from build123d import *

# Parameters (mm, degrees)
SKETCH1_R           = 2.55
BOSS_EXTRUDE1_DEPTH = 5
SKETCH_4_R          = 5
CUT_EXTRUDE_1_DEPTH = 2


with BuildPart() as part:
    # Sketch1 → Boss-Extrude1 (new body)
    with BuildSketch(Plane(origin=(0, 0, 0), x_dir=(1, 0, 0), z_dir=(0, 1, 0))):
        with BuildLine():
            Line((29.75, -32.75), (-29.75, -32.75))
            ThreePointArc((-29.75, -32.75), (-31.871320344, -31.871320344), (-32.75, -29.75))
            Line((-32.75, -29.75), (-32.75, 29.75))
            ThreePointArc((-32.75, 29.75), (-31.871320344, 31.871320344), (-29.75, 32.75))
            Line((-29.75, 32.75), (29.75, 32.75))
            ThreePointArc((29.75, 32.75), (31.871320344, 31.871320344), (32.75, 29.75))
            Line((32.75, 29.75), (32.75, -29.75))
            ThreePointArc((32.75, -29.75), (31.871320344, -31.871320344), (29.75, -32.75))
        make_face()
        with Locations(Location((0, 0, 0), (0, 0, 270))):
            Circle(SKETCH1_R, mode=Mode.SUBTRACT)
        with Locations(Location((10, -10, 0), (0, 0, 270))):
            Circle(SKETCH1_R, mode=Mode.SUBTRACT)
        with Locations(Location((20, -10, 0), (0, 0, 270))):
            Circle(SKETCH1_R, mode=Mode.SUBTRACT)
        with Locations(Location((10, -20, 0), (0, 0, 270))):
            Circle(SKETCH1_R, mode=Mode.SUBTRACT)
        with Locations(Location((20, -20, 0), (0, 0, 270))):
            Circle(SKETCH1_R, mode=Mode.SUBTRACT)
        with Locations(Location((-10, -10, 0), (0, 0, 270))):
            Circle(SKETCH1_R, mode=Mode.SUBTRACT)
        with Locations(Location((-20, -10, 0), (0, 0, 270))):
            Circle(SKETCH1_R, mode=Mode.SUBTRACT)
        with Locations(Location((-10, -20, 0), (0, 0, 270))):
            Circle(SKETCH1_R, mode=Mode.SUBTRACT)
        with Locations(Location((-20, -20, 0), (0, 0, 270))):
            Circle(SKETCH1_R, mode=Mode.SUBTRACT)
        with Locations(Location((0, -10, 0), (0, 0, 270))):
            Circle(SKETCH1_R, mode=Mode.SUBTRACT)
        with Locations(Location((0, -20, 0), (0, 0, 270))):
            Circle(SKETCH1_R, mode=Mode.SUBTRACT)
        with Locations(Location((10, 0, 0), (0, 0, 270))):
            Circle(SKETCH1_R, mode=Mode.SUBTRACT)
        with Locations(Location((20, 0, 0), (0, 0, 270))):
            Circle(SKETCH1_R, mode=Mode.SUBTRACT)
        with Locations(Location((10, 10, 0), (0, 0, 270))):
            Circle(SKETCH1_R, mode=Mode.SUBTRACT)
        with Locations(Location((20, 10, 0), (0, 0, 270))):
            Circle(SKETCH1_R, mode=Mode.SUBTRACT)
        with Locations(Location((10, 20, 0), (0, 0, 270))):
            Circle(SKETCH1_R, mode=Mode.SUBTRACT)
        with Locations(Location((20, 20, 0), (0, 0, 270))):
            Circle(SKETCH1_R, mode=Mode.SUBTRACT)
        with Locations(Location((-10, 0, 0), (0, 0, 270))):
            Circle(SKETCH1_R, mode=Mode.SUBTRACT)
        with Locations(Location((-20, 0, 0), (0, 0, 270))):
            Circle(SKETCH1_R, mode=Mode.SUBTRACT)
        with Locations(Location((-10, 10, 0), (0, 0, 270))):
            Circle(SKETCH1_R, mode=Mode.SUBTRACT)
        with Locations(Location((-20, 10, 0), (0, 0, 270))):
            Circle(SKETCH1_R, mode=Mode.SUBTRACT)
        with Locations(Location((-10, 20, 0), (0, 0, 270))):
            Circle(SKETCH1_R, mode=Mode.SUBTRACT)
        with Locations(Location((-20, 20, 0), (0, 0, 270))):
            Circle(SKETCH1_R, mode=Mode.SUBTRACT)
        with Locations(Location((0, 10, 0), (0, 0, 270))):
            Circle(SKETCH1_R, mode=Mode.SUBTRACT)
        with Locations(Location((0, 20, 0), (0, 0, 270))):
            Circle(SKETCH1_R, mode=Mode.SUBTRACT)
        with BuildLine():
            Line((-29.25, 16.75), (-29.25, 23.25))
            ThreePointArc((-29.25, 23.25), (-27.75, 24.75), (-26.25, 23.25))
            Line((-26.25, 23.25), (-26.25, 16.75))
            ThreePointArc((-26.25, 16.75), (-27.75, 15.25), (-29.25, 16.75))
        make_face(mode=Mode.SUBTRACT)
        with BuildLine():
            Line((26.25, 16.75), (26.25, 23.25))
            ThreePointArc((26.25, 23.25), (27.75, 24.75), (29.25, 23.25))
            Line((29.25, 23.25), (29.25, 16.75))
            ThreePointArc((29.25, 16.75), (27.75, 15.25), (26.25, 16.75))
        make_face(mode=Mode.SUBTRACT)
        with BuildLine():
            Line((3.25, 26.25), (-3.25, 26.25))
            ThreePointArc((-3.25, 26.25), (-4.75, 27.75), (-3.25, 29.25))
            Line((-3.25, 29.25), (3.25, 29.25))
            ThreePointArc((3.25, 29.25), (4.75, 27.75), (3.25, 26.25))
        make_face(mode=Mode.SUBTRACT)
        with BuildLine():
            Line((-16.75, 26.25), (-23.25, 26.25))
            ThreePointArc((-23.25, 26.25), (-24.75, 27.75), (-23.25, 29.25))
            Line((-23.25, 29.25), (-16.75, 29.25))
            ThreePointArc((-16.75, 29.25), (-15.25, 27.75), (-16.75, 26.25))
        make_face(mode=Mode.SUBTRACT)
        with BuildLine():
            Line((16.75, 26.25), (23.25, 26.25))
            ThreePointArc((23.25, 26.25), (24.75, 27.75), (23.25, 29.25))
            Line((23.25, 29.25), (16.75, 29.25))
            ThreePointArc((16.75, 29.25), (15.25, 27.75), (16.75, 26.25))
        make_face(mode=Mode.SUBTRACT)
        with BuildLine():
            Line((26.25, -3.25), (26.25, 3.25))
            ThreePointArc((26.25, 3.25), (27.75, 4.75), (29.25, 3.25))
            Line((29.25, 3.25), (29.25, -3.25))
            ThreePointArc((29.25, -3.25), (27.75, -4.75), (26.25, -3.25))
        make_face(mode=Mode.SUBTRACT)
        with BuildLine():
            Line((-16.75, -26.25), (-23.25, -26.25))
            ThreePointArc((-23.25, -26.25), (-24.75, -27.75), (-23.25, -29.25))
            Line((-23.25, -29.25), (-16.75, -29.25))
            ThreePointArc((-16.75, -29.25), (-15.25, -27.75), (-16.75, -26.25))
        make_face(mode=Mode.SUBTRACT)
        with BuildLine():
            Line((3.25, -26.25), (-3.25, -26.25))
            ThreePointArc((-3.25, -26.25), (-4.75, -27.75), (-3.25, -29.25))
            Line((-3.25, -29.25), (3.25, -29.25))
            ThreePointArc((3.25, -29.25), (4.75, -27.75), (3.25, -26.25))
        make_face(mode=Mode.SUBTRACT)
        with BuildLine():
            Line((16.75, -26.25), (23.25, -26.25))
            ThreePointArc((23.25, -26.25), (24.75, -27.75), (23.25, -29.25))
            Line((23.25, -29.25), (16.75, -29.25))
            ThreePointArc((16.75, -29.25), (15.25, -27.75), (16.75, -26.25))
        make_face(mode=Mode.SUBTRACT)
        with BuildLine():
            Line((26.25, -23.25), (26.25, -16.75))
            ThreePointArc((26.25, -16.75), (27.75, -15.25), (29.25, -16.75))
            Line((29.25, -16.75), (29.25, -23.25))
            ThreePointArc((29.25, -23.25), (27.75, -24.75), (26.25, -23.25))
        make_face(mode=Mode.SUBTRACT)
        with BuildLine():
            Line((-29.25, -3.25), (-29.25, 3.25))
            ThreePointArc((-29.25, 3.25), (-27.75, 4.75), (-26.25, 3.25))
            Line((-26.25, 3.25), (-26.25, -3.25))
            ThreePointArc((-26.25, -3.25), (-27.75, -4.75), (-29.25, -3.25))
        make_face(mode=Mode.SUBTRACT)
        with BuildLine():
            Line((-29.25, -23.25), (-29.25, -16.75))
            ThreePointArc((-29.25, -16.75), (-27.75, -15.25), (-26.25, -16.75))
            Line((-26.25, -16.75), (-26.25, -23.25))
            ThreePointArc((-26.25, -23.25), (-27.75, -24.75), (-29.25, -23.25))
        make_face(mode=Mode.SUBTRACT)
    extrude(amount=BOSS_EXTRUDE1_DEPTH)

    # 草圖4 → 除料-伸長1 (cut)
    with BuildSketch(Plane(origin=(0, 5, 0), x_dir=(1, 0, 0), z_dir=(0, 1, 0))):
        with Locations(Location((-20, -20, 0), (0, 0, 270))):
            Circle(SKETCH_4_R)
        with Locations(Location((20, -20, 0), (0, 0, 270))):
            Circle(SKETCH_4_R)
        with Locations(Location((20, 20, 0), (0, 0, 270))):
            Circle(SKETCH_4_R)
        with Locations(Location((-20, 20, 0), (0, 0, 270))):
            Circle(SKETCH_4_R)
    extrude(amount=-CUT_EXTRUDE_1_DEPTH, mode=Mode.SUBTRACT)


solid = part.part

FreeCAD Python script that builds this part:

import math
import FreeCAD as App
import Part
import Sketcher

V = App.Vector

doc = App.newDocument("Part")
params = doc.addObject("Spreadsheet::Sheet", "Params")
for row, (alias, value) in enumerate([
    ("sketch1_radius", "3 mm"),
    ("sketch1_diameter", "5.1 mm"),
    ("sketch1_radius2", "1.5 mm"),
    ("sketch1_width", "59.5 mm"),
    ("sketch1_width2", "6.5 mm"),
    ("pad1_length", "5 mm"),
    ("sketch2_diameter", "10 mm"),
    ("pocket1_length", "2 mm"),
], start=1):
    params.set(f"A{row}", alias)
    params.set(f"B{row}", "=" + value)
    params.setAlias(f"B{row}", alias)

body = doc.addObject("PartDesign::Body", "Body")

# Sketch on XZ plane
sketch1 = doc.addObject("Sketcher::SketchObject", "Sketch")
body.addObject(sketch1)
sketch1.AttachmentSupport = (doc.XZ_Plane, [""])
sketch1.MapMode = "FlatFace"
sketch1.addGeometry([
    Part.LineSegment(V(-29.8, 32.8, 0), V(29.8, 32.8, 0)),  # 0
    Part.ArcOfCircle(Part.Circle(V(29.8, 29.8, 0), V(0, 0, 1), 3), math.radians(0), math.radians(90)),  # 1
    Part.LineSegment(V(32.8, 29.8, 0), V(32.8, -29.8, 0)),  # 2
    Part.ArcOfCircle(Part.Circle(V(29.8, -29.8, 0), V(0, 0, 1), 3), math.radians(-90), math.radians(0)),  # 3
    Part.LineSegment(V(29.8, -32.8, 0), V(-29.8, -32.8, 0)),  # 4
    Part.ArcOfCircle(Part.Circle(V(-29.8, -29.8, 0), V(0, 0, 1), 3), math.radians(180), math.radians(270)),  # 5
    Part.LineSegment(V(-32.8, -29.8, 0), V(-32.8, 29.8, 0)),  # 6
    Part.ArcOfCircle(Part.Circle(V(-29.8, 29.8, 0), V(0, 0, 1), 3), math.radians(90), math.radians(180)),  # 7
    Part.LineSegment(V(16.8, 26.2, 0), V(23.2, 26.2, 0)),  # 8
    Part.ArcOfCircle(Part.Circle(V(23.2, 27.8, 0), V(0, 0, 1), 1.5), math.radians(-90), math.radians(90)),  # 9
    Part.LineSegment(V(23.2, 29.2, 0), V(16.8, 29.2, 0)),  # 10
    Part.ArcOfCircle(Part.Circle(V(16.8, 27.8, 0), V(0, 0, 1), 1.5), math.radians(90), math.radians(270)),  # 11
    Part.LineSegment(V(26.2, 23.2, 0), V(26.2, 16.8, 0)),  # 12
    Part.ArcOfCircle(Part.Circle(V(27.8, 16.8, 0), V(0, 0, 1), 1.5), math.radians(180), math.radians(360)),  # 13
    Part.LineSegment(V(29.2, 16.8, 0), V(29.2, 23.2, 0)),  # 14
    Part.ArcOfCircle(Part.Circle(V(27.8, 23.2, 0), V(0, 0, 1), 1.5), math.radians(0), math.radians(180)),  # 15
    Part.Circle(V(20, 20, 0), V(0, 0, 1), 2.5),  # 16
    Part.Circle(V(10, 20, 0), V(0, 0, 1), 2.5),  # 17
    Part.Circle(V(20, 10, 0), V(0, 0, 1), 2.5),  # 18
    Part.Circle(V(10, 10, 0), V(0, 0, 1), 2.5),  # 19
    Part.ArcOfCircle(Part.Circle(V(3.2, 27.8, 0), V(0, 0, 1), 1.5), math.radians(-90), math.radians(90)),  # 20
    Part.LineSegment(V(3.2, 29.2, 0), V(-3.2, 29.2, 0)),  # 21
    Part.ArcOfCircle(Part.Circle(V(-3.2, 27.8, 0), V(0, 0, 1), 1.5), math.radians(90), math.radians(270)),  # 22
    Part.LineSegment(V(-3.2, 26.2, 0), V(3.2, 26.2, 0)),  # 23
    Part.Circle(V(0, 20, 0), V(0, 0, 1), 2.5),  # 24
    Part.Circle(V(-10, 20, 0), V(0, 0, 1), 2.5),  # 25
    Part.ArcOfCircle(Part.Circle(V(-16.8, 27.8, 0), V(0, 0, 1), 1.5), math.radians(-90), math.radians(90)),  # 26
    Part.LineSegment(V(-16.8, 29.2, 0), V(-23.2, 29.2, 0)),  # 27
    Part.ArcOfCircle(Part.Circle(V(-23.2, 27.8, 0), V(0, 0, 1), 1.5), math.radians(90), math.radians(270)),  # 28
    Part.LineSegment(V(-23.2, 26.2, 0), V(-16.8, 26.2, 0)),  # 29
    Part.Circle(V(-20, 20, 0), V(0, 0, 1), 2.5),  # 30
    Part.LineSegment(V(-29.2, 23.2, 0), V(-29.2, 16.8, 0)),  # 31
    Part.ArcOfCircle(Part.Circle(V(-27.8, 16.8, 0), V(0, 0, 1), 1.5), math.radians(180), math.radians(360)),  # 32
    Part.LineSegment(V(-26.2, 16.8, 0), V(-26.2, 23.2, 0)),  # 33
    Part.ArcOfCircle(Part.Circle(V(-27.8, 23.2, 0), V(0, 0, 1), 1.5), math.radians(0), math.radians(180)),  # 34
    Part.Circle(V(0, 10, 0), V(0, 0, 1), 2.5),  # 35
    Part.Circle(V(-10, 10, 0), V(0, 0, 1), 2.5),  # 36
    Part.Circle(V(-20, 10, 0), V(0, 0, 1), 2.5),  # 37
    Part.LineSegment(V(26.2, 3.2, 0), V(26.2, -3.2, 0)),  # 38
    Part.ArcOfCircle(Part.Circle(V(27.8, -3.2, 0), V(0, 0, 1), 1.5), math.radians(180), math.radians(360)),  # 39
    Part.LineSegment(V(29.2, -3.2, 0), V(29.2, 3.2, 0)),  # 40
    Part.ArcOfCircle(Part.Circle(V(27.8, 3.2, 0), V(0, 0, 1), 1.5), math.radians(0), math.radians(180)),  # 41
    Part.Circle(V(20, 0, 0), V(0, 0, 1), 2.5),  # 42
    Part.Circle(V(20, -10, 0), V(0, 0, 1), 2.5),  # 43
    Part.Circle(V(10, 0, 0), V(0, 0, 1), 2.5),  # 44
    Part.Circle(V(10, -10, 0), V(0, 0, 1), 2.5),  # 45
    Part.LineSegment(V(26.2, -16.8, 0), V(26.2, -23.2, 0)),  # 46
    Part.ArcOfCircle(Part.Circle(V(27.8, -23.2, 0), V(0, 0, 1), 1.5), math.radians(180), math.radians(360)),  # 47
    Part.LineSegment(V(29.2, -23.2, 0), V(29.2, -16.8, 0)),  # 48
    Part.ArcOfCircle(Part.Circle(V(27.8, -16.8, 0), V(0, 0, 1), 1.5), math.radians(0), math.radians(180)),  # 49
    Part.Circle(V(20, -20, 0), V(0, 0, 1), 2.5),  # 50
    Part.ArcOfCircle(Part.Circle(V(16.8, -27.8, 0), V(0, 0, 1), 1.5), math.radians(90), math.radians(270)),  # 51
    Part.LineSegment(V(16.8, -29.2, 0), V(23.2, -29.2, 0)),  # 52
    Part.ArcOfCircle(Part.Circle(V(23.2, -27.8, 0), V(0, 0, 1), 1.5), math.radians(-90), math.radians(90)),  # 53
    Part.LineSegment(V(23.2, -26.2, 0), V(16.8, -26.2, 0)),  # 54
    Part.Circle(V(10, -20, 0), V(0, 0, 1), 2.5),  # 55
    Part.Circle(V(0, 0, 0), V(0, 0, 1), 2.5),  # 56
    Part.Circle(V(-10, 0, 0), V(0, 0, 1), 2.5),  # 57
    Part.Circle(V(0, -10, 0), V(0, 0, 1), 2.5),  # 58
    Part.Circle(V(-10, -10, 0), V(0, 0, 1), 2.5),  # 59
    Part.Circle(V(-20, 0, 0), V(0, 0, 1), 2.5),  # 60
    Part.LineSegment(V(-29.2, 3.2, 0), V(-29.2, -3.2, 0)),  # 61
    Part.ArcOfCircle(Part.Circle(V(-27.8, -3.2, 0), V(0, 0, 1), 1.5), math.radians(180), math.radians(360)),  # 62
    Part.LineSegment(V(-26.2, -3.2, 0), V(-26.2, 3.2, 0)),  # 63
    Part.ArcOfCircle(Part.Circle(V(-27.8, 3.2, 0), V(0, 0, 1), 1.5), math.radians(0), math.radians(180)),  # 64
    Part.Circle(V(-20, -10, 0), V(0, 0, 1), 2.5),  # 65
    Part.Circle(V(0, -20, 0), V(0, 0, 1), 2.5),  # 66
    Part.Circle(V(-10, -20, 0), V(0, 0, 1), 2.5),  # 67
    Part.LineSegment(V(3.2, -26.2, 0), V(-3.2, -26.2, 0)),  # 68
    Part.ArcOfCircle(Part.Circle(V(-3.2, -27.8, 0), V(0, 0, 1), 1.5), math.radians(90), math.radians(270)),  # 69
    Part.LineSegment(V(-3.2, -29.2, 0), V(3.2, -29.2, 0)),  # 70
    Part.ArcOfCircle(Part.Circle(V(3.2, -27.8, 0), V(0, 0, 1), 1.5), math.radians(-90), math.radians(90)),  # 71
    Part.Circle(V(-20, -20, 0), V(0, 0, 1), 2.5),  # 72
    Part.LineSegment(V(-29.2, -16.8, 0), V(-29.2, -23.2, 0)),  # 73
    Part.ArcOfCircle(Part.Circle(V(-27.8, -23.2, 0), V(0, 0, 1), 1.5), math.radians(180), math.radians(360)),  # 74
    Part.LineSegment(V(-26.2, -23.2, 0), V(-26.2, -16.8, 0)),  # 75
    Part.ArcOfCircle(Part.Circle(V(-27.8, -16.8, 0), V(0, 0, 1), 1.5), math.radians(0), math.radians(180)),  # 76
    Part.LineSegment(V(-16.8, -26.2, 0), V(-23.2, -26.2, 0)),  # 77
    Part.ArcOfCircle(Part.Circle(V(-23.2, -27.8, 0), V(0, 0, 1), 1.5), math.radians(90), math.radians(270)),  # 78
    Part.LineSegment(V(-23.2, -29.2, 0), V(-16.8, -29.2, 0)),  # 79
    Part.ArcOfCircle(Part.Circle(V(-16.8, -27.8, 0), V(0, 0, 1), 1.5), math.radians(-90), math.radians(90)),  # 80
], False)
sketch1.addConstraint([
    Sketcher.Constraint("Tangent", 0, 2, 1, 2),
    Sketcher.Constraint("Tangent", 1, 1, 2, 1),
    Sketcher.Constraint("Tangent", 2, 2, 3, 2),
    Sketcher.Constraint("Tangent", 3, 1, 4, 1),
    Sketcher.Constraint("Tangent", 4, 2, 5, 2),
    Sketcher.Constraint("Tangent", 5, 1, 6, 1),
    Sketcher.Constraint("Tangent", 6, 2, 7, 2),
    Sketcher.Constraint("Tangent", 7, 1, 0, 1),
    Sketcher.Constraint("Tangent", 8, 2, 9, 1),
    Sketcher.Constraint("Tangent", 9, 2, 10, 1),
    Sketcher.Constraint("Tangent", 10, 2, 11, 1),
    Sketcher.Constraint("Tangent", 11, 2, 8, 1),
    Sketcher.Constraint("Tangent", 12, 2, 13, 1),
    Sketcher.Constraint("Tangent", 13, 2, 14, 1),
    Sketcher.Constraint("Tangent", 14, 2, 15, 1),
    Sketcher.Constraint("Tangent", 15, 2, 12, 1),
    Sketcher.Constraint("Tangent", 20, 2, 21, 1),
    Sketcher.Constraint("Tangent", 21, 2, 22, 1),
    Sketcher.Constraint("Tangent", 22, 2, 23, 1),
    Sketcher.Constraint("Tangent", 23, 2, 20, 1),
    Sketcher.Constraint("Tangent", 26, 2, 27, 1),
    Sketcher.Constraint("Tangent", 27, 2, 28, 1),
    Sketcher.Constraint("Tangent", 28, 2, 29, 1),
    Sketcher.Constraint("Tangent", 29, 2, 26, 1),
    Sketcher.Constraint("Tangent", 31, 2, 32, 1),
    Sketcher.Constraint("Tangent", 32, 2, 33, 1),
    Sketcher.Constraint("Tangent", 33, 2, 34, 1),
    Sketcher.Constraint("Tangent", 34, 2, 31, 1),
    Sketcher.Constraint("Tangent", 38, 2, 39, 1),
    Sketcher.Constraint("Tangent", 39, 2, 40, 1),
    Sketcher.Constraint("Tangent", 40, 2, 41, 1),
    Sketcher.Constraint("Tangent", 41, 2, 38, 1),
    Sketcher.Constraint("Tangent", 46, 2, 47, 1),
    Sketcher.Constraint("Tangent", 47, 2, 48, 1),
    Sketcher.Constraint("Tangent", 48, 2, 49, 1),
    Sketcher.Constraint("Tangent", 49, 2, 46, 1),
    Sketcher.Constraint("Tangent", 51, 2, 52, 1),
    Sketcher.Constraint("Tangent", 52, 2, 53, 1),
    Sketcher.Constraint("Tangent", 53, 2, 54, 1),
    Sketcher.Constraint("Tangent", 54, 2, 51, 1),
    Sketcher.Constraint("Tangent", 61, 2, 62, 1),
    Sketcher.Constraint("Tangent", 62, 2, 63, 1),
    Sketcher.Constraint("Tangent", 63, 2, 64, 1),
    Sketcher.Constraint("Tangent", 64, 2, 61, 1),
    Sketcher.Constraint("Tangent", 68, 2, 69, 1),
    Sketcher.Constraint("Tangent", 69, 2, 70, 1),
    Sketcher.Constraint("Tangent", 70, 2, 71, 1),
    Sketcher.Constraint("Tangent", 71, 2, 68, 1),
    Sketcher.Constraint("Tangent", 73, 2, 74, 1),
    Sketcher.Constraint("Tangent", 74, 2, 75, 1),
    Sketcher.Constraint("Tangent", 75, 2, 76, 1),
    Sketcher.Constraint("Tangent", 76, 2, 73, 1),
    Sketcher.Constraint("Tangent", 77, 2, 78, 1),
    Sketcher.Constraint("Tangent", 78, 2, 79, 1),
    Sketcher.Constraint("Tangent", 79, 2, 80, 1),
    Sketcher.Constraint("Tangent", 80, 2, 77, 1),
    Sketcher.Constraint("Horizontal", 0),
    Sketcher.Constraint("Vertical", 2),
    Sketcher.Constraint("Horizontal", 4),
    Sketcher.Constraint("Vertical", 6),
    Sketcher.Constraint("Horizontal", 8),
    Sketcher.Constraint("Horizontal", 10),
    Sketcher.Constraint("Vertical", 12),
    Sketcher.Constraint("Vertical", 14),
    Sketcher.Constraint("Horizontal", 21),
    Sketcher.Constraint("Horizontal", 23),
    Sketcher.Constraint("Horizontal", 27),
    Sketcher.Constraint("Horizontal", 29),
    Sketcher.Constraint("Vertical", 31),
    Sketcher.Constraint("Vertical", 33),
    Sketcher.Constraint("Vertical", 38),
    Sketcher.Constraint("Vertical", 40),
    Sketcher.Constraint("Vertical", 46),
    Sketcher.Constraint("Vertical", 48),
    Sketcher.Constraint("Horizontal", 52),
    Sketcher.Constraint("Horizontal", 54),
    Sketcher.Constraint("Vertical", 61),
    Sketcher.Constraint("Vertical", 63),
    Sketcher.Constraint("Horizontal", 68),
    Sketcher.Constraint("Horizontal", 70),
    Sketcher.Constraint("Vertical", 73),
    Sketcher.Constraint("Vertical", 75),
    Sketcher.Constraint("Horizontal", 77),
    Sketcher.Constraint("Horizontal", 79),
    Sketcher.Constraint("Coincident", 56, 3, -1, 1),
    Sketcher.Constraint("Equal", 1, 3),
    Sketcher.Constraint("Equal", 3, 5),
    Sketcher.Constraint("Equal", 5, 7),
    Sketcher.Constraint("Equal", 11, 13),
    Sketcher.Constraint("Equal", 16, 17),
    Sketcher.Constraint("Equal", 17, 18),
    Sketcher.Constraint("Equal", 18, 19),
    Sketcher.Constraint("Equal", 15, 20),
    Sketcher.Constraint("Equal", 19, 24),
    Sketcher.Constraint("Equal", 24, 25),
    Sketcher.Constraint("Equal", 22, 26),
    Sketcher.Constraint("Equal", 25, 30),
    Sketcher.Constraint("Equal", 28, 32),
    Sketcher.Constraint("Equal", 30, 35),
    Sketcher.Constraint("Equal", 35, 36),
    Sketcher.Constraint("Equal", 36, 37),
    Sketcher.Constraint("Equal", 34, 39),
    Sketcher.Constraint("Equal", 37, 42),
    Sketcher.Constraint("Equal", 42, 43),
    Sketcher.Constraint("Equal", 43, 44),
    Sketcher.Constraint("Equal", 44, 45),
    Sketcher.Constraint("Equal", 41, 47),
    Sketcher.Constraint("Equal", 45, 50),
    Sketcher.Constraint("Equal", 49, 51),
    Sketcher.Constraint("Equal", 50, 55),
    Sketcher.Constraint("Equal", 55, 56),
    Sketcher.Constraint("Equal", 56, 57),
    Sketcher.Constraint("Equal", 57, 58),
    Sketcher.Constraint("Equal", 58, 59),
    Sketcher.Constraint("Equal", 59, 60),
    Sketcher.Constraint("Equal", 53, 62),
    Sketcher.Constraint("Equal", 60, 65),
    Sketcher.Constraint("Equal", 65, 66),
    Sketcher.Constraint("Equal", 66, 67),
    Sketcher.Constraint("Equal", 64, 69),
    Sketcher.Constraint("Equal", 67, 72),
    Sketcher.Constraint("Equal", 71, 74),
    Sketcher.Constraint("Equal", 76, 78),
    Sketcher.Constraint("Symmetric", 1, 3, 5, 3, -1, 1),
    Sketcher.Constraint("Symmetric", 37, 3, 43, 3, -1, 1),
    Sketcher.Constraint("Symmetric", 36, 3, 45, 3, -1, 1),
    Sketcher.Constraint("Symmetric", 34, 3, 47, 3, -1, 1),
    Sketcher.Constraint("Symmetric", 30, 3, 50, 3, -1, 1),
    Sketcher.Constraint("Symmetric", 26, 3, 51, 3, -1, 1),
    Sketcher.Constraint("Symmetric", 25, 3, 55, 3, -1, 1),
    Sketcher.Constraint("Symmetric", 44, 3, 57, 3, -1, 1),
    Sketcher.Constraint("Symmetric", 35, 3, 58, 3, -1, 1),
    Sketcher.Constraint("Symmetric", 19, 3, 59, 3, -1, 1),
    Sketcher.Constraint("Symmetric", 42, 3, 60, 3, -1, 1),
    Sketcher.Constraint("Symmetric", 41, 3, 62, 3, -1, 1),
    Sketcher.Constraint("Symmetric", 18, 3, 65, 3, -1, 1),
    Sketcher.Constraint("Symmetric", 24, 3, 66, 3, -1, 1),
    Sketcher.Constraint("Symmetric", 17, 3, 67, 3, -1, 1),
    Sketcher.Constraint("Symmetric", 20, 3, 69, 3, -1, 1),
    Sketcher.Constraint("Symmetric", 16, 3, 72, 3, -1, 1),
    Sketcher.Constraint("Symmetric", 15, 3, 74, 3, -1, 1),
    Sketcher.Constraint("Symmetric", 9, 3, 78, 3, -1, 1),
    Sketcher.Constraint("Symmetric", 17, 3, 25, 3, -2),
    Sketcher.Constraint("Symmetric", 11, 3, 26, 3, -2),
    Sketcher.Constraint("Symmetric", 16, 3, 30, 3, -2),
    Sketcher.Constraint("Symmetric", 13, 3, 32, 3, -2),
    Sketcher.Constraint("Symmetric", 19, 3, 36, 3, -2),
    Sketcher.Constraint("Symmetric", 18, 3, 37, 3, -2),
    Sketcher.Constraint("PointOnObject", 24, 3, -2),
    Sketcher.Constraint("PointOnObject", 35, 3, -2),
    Sketcher.Constraint("PointOnObject", 42, 3, -1),
    Sketcher.Constraint("PointOnObject", 44, 3, -1),
    Sketcher.Constraint("Horizontal", 16, 3, 17, 3),
    Sketcher.Constraint("Horizontal", 18, 3, 19, 3),
    Sketcher.Constraint("Horizontal", 11, 3, 20, 3),
    Sketcher.Constraint("Horizontal", 17, 3, 24, 3),
    Sketcher.Constraint("Horizontal", 15, 3, 34, 3),
    Sketcher.Constraint("Horizontal", 19, 3, 35, 3),
    Sketcher.Constraint("Horizontal", 39, 3, 62, 3),
    Sketcher.Constraint("Horizontal", 41, 3, 64, 3),
    Sketcher.Constraint("Horizontal", 49, 3, 76, 3),
    Sketcher.Constraint("Vertical", 16, 3, 18, 3),
    Sketcher.Constraint("Vertical", 17, 3, 19, 3),
    Sketcher.Constraint("Vertical", 15, 3, 39, 3),
    Sketcher.Constraint("Vertical", 18, 3, 42, 3),
    Sketcher.Constraint("Vertical", 19, 3, 44, 3),
    Sketcher.Constraint("Vertical", 9, 3, 53, 3),
    Sketcher.Constraint("Vertical", 22, 3, 69, 3),
    Sketcher.Constraint("Vertical", 20, 3, 71, 3),
    Sketcher.Constraint("Vertical", 28, 3, 78, 3),
    Sketcher.Constraint("Vertical", 26, 3, 80, 3),
    Sketcher.Constraint("Equal", 10, 21),
    Sketcher.Constraint("Equal", 4, 2),
    Sketcher.Constraint("Equal", 79, 12),
    Sketcher.Constraint("Equal", 33, 38),
    Sketcher.Constraint("Equal", 40, 46),
    Sketcher.Constraint("Radius", 1, 3.0),
    Sketcher.Constraint("Diameter", 16, 5.1),
    Sketcher.Constraint("Radius", 9, 1.5),
    Sketcher.Constraint("DistanceX", 0, 1, 0, 2, 59.5),
    Sketcher.Constraint("DistanceX", 8, 1, 8, 2, 6.5),
    Sketcher.Constraint("DistanceX", -1, 1, 16, 3, 20.0),
    Sketcher.Constraint("DistanceY", -1, 1, 16, 3, 20.0),
    Sketcher.Constraint("DistanceX", -1, 1, 17, 3, 10.0),
    Sketcher.Constraint("DistanceY", -1, 1, 18, 3, 10.0),
    Sketcher.Constraint("DistanceX", -1, 1, 9, 3, 23.25),
    Sketcher.Constraint("DistanceY", -1, 1, 9, 3, 27.75),
    Sketcher.Constraint("DistanceX", -1, 1, 13, 3, 27.75),
    Sketcher.Constraint("DistanceY", -1, 1, 13, 3, 16.75),
])
sketch1.setExpression("Constraints[176]", "Params.sketch1_radius")
sketch1.setExpression("Constraints[177]", "Params.sketch1_diameter")
sketch1.setExpression("Constraints[178]", "Params.sketch1_radius2")
sketch1.setExpression("Constraints[179]", "Params.sketch1_width")
sketch1.setExpression("Constraints[180]", "Params.sketch1_width2")
pad1 = doc.addObject("PartDesign::Pad", "Pad")
body.addObject(pad1)
pad1.Profile = sketch1
pad1.setExpression("Length", "Params.pad1_length")
pad1.Reversed = True

# Sketch on XZ plane
sketch2 = doc.addObject("Sketcher::SketchObject", "Sketch001")
body.addObject(sketch2)
sketch2.AttachmentSupport = (doc.XZ_Plane, [""])
sketch2.MapMode = "FlatFace"
sketch2.AttachmentOffset = App.Placement(V(0, 0, -5), App.Rotation())
sketch2.addGeometry([
    Part.Circle(V(-20, 20, 0), V(0, 0, 1), 5),
    Part.Circle(V(20, 20, 0), V(0, 0, 1), 5),
    Part.Circle(V(20, -20, 0), V(0, 0, 1), 5),
    Part.Circle(V(-20, -20, 0), V(0, 0, 1), 5),
], False)
sketch2.addConstraint([
    Sketcher.Constraint("Equal", 0, 1),
    Sketcher.Constraint("Equal", 1, 2),
    Sketcher.Constraint("Equal", 2, 3),
    Sketcher.Constraint("Symmetric", 0, 3, 2, 3, -1, 1),
    Sketcher.Constraint("Symmetric", 1, 3, 3, 3, -1, 1),
    Sketcher.Constraint("Symmetric", 0, 3, 1, 3, -2),
    Sketcher.Constraint("Diameter", 0, 10.0),
    Sketcher.Constraint("DistanceX", 0, 3, -1, 1, 20.0),
    Sketcher.Constraint("DistanceY", -1, 1, 0, 3, 20.0),
])
sketch2.setExpression("Constraints[6]", "Params.sketch2_diameter")
pocket1 = doc.addObject("PartDesign::Pocket", "Pocket")
body.addObject(pocket1)
pocket1.Profile = sketch2
pocket1.setExpression("Length", "Params.pocket1_length")
pocket1.Reversed = True

doc.recompute()
